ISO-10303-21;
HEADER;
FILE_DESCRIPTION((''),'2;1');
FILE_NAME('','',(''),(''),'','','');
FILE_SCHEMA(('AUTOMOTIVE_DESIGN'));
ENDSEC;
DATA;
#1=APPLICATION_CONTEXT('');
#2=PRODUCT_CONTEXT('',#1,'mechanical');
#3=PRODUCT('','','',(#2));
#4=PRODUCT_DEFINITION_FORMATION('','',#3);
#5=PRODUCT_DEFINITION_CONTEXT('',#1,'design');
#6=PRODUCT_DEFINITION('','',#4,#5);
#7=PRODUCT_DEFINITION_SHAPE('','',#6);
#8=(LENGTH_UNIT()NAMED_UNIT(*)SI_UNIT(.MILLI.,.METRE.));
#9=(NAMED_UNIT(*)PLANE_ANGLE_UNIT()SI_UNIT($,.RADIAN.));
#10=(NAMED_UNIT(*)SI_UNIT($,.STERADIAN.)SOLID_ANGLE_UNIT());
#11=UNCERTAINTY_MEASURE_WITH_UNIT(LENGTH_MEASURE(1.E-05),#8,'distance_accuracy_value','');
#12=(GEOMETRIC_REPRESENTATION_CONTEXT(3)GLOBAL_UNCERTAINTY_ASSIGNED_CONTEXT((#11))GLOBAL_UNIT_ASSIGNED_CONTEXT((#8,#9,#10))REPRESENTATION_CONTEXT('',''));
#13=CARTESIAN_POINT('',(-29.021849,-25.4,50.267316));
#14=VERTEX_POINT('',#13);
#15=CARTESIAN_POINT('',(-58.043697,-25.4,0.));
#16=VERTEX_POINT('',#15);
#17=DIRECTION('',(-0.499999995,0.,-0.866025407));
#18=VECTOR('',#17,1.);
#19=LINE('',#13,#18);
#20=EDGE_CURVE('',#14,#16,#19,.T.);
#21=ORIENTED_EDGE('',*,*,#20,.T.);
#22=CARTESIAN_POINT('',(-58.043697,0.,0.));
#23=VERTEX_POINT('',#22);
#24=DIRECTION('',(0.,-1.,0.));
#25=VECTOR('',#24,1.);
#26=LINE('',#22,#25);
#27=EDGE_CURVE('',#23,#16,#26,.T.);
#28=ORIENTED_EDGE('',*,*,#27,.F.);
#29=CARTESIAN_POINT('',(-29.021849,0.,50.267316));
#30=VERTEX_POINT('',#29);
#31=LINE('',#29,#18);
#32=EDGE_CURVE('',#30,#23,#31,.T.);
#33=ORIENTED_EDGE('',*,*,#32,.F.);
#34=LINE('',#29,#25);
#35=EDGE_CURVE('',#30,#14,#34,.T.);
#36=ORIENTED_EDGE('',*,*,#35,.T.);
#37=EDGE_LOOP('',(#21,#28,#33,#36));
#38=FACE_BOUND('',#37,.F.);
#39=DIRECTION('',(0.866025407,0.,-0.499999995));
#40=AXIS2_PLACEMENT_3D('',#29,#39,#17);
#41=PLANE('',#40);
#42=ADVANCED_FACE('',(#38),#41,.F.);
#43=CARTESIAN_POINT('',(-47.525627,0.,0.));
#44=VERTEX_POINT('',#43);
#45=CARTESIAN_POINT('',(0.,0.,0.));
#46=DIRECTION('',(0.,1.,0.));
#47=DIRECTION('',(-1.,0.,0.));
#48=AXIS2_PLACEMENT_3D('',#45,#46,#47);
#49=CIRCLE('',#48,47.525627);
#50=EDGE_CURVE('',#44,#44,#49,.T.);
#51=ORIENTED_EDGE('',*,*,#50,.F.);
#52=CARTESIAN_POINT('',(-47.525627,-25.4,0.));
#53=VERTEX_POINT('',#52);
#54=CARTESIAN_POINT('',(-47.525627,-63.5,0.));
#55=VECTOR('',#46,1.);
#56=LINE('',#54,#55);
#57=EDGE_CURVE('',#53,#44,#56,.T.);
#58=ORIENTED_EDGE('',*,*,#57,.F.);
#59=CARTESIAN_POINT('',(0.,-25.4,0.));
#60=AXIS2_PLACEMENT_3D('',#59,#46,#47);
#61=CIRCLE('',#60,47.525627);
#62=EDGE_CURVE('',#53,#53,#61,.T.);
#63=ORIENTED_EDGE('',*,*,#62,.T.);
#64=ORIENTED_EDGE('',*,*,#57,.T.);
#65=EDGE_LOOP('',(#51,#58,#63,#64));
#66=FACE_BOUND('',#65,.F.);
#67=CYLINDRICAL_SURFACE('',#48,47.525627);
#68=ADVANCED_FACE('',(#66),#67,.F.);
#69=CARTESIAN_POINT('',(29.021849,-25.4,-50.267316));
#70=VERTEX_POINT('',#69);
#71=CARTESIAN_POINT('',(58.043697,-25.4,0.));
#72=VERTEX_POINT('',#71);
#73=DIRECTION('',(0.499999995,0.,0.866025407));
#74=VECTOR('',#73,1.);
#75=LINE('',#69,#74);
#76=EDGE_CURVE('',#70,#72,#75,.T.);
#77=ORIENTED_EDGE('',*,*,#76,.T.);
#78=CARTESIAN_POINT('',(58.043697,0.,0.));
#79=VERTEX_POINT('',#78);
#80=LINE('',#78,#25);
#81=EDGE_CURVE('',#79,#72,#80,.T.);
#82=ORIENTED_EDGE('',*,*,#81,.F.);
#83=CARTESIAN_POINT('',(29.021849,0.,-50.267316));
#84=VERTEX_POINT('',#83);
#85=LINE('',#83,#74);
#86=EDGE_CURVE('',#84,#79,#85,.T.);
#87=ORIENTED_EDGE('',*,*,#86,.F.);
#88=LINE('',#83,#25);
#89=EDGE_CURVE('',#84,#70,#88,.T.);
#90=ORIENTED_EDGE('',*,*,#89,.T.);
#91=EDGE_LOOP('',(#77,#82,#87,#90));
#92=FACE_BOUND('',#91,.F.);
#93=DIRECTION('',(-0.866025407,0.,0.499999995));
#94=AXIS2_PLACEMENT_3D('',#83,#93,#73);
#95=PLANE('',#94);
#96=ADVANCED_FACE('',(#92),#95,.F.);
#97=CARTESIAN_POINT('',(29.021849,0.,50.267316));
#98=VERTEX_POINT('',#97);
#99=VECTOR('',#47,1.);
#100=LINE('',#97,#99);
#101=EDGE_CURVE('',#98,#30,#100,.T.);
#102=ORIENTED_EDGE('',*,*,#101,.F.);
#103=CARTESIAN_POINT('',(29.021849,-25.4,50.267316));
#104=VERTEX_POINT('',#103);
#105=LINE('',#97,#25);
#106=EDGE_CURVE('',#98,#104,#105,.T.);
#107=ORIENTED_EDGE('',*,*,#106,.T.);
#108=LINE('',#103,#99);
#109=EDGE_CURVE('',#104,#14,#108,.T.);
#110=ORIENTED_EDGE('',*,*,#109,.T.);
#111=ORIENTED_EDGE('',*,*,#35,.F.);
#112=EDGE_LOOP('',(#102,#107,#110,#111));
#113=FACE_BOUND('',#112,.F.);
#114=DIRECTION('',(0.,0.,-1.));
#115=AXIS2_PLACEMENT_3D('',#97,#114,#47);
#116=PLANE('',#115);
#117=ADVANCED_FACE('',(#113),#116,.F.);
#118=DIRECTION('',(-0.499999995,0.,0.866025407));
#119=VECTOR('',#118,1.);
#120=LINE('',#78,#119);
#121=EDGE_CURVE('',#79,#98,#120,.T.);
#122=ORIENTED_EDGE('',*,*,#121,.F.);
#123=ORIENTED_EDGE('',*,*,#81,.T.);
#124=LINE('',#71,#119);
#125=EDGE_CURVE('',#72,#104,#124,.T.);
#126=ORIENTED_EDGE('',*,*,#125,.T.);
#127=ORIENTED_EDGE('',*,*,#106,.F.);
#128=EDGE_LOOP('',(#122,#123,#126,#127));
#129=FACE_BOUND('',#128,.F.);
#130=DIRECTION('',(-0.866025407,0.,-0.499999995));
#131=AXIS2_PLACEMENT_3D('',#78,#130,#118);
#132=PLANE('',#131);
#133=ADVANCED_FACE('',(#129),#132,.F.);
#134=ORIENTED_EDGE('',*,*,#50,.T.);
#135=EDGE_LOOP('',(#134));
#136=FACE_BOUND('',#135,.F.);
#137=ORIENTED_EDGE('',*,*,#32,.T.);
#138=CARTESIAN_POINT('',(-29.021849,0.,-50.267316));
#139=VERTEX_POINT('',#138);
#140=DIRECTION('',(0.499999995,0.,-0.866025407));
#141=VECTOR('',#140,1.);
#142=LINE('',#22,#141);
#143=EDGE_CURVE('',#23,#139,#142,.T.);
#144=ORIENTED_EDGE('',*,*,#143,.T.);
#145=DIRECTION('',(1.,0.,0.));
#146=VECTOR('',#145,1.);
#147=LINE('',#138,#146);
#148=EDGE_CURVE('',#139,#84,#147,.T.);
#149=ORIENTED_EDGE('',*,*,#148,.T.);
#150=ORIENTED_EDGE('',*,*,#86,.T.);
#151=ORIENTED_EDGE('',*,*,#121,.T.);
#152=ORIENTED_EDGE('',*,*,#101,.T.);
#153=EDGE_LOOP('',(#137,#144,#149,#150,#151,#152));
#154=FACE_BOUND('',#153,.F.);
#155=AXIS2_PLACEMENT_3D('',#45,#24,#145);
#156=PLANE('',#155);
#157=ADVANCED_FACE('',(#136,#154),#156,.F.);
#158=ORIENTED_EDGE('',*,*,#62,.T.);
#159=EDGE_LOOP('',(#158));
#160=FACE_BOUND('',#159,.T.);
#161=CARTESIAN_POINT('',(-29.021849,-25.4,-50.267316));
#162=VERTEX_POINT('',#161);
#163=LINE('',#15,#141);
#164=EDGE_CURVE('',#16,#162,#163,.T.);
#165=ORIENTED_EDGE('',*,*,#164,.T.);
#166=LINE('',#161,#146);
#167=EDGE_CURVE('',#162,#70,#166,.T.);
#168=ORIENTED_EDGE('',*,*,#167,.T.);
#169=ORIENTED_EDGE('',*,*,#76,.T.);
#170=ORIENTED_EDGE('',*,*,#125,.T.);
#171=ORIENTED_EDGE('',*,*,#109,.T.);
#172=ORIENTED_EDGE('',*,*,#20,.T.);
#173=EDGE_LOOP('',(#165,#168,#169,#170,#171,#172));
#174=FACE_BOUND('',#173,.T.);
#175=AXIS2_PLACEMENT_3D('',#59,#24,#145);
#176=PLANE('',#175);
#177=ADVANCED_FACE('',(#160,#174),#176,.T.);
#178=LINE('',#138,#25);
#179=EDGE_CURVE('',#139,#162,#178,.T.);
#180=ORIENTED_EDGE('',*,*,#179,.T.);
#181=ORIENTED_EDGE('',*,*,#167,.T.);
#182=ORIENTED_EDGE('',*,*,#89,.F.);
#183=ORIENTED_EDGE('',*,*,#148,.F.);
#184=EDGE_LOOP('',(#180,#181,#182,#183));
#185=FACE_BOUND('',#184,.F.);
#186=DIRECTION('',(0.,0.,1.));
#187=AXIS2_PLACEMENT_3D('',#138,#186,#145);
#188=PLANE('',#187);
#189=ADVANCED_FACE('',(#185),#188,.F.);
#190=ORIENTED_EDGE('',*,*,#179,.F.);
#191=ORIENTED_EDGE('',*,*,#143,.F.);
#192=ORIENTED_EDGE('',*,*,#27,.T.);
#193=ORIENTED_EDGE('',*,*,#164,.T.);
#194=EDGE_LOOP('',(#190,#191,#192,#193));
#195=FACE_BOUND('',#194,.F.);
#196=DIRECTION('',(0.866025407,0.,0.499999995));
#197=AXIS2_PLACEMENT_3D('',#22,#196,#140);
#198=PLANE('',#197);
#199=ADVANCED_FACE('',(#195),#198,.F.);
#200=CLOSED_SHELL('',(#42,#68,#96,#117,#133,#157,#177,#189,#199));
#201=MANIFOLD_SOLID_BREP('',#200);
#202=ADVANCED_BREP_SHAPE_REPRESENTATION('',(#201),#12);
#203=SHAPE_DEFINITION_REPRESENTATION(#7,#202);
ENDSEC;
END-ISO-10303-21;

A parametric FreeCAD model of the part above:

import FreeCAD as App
import Part
import Sketcher
Q = App.Units.Quantity

doc = App.newDocument("Part")
params = doc.addObject("Spreadsheet::Sheet", "Params")
for row, (alias, value) in enumerate([
    ("pad1_length", "1 in"),
    ("pad2_length", "1.18585 mm"),
    ("pocket1_length", "5 in"),
], start=1):
    params.set(f"A{row}", alias)
    params.set(f"B{row}", "=" + value)
    params.setAlias(f"B{row}", alias)

body = doc.addObject("PartDesign::Body", "Body")

sketch1 = body.newObject("Sketcher::SketchObject", "Sketch")
sketch1.AttachmentSupport = (doc.getObject("XZ_Plane"), [""])
sketch1.MapMode = "FlatFace"
sketch1.addGeometry([
    Part.LineSegment(App.Vector(29, 50, 0), App.Vector(-29, 50, 0)),
    Part.LineSegment(App.Vector(-29, 50, 0), App.Vector(-58, 0, 0)),
    Part.LineSegment(App.Vector(-58, 0, 0), App.Vector(-29, -50, 0)),
    Part.LineSegment(App.Vector(-29, -50, 0), App.Vector(29, -50, 0)),
    Part.LineSegment(App.Vector(29, -50, 0), App.Vector(58, 0, 0)),
    Part.LineSegment(App.Vector(58, 0, 0), App.Vector(29, 50, 0)),
], False)
sketch1.addConstraint([
    Sketcher.Constraint("Coincident", 0, 2, 1, 1),
    Sketcher.Constraint("Coincident", 1, 2, 2, 1),
    Sketcher.Constraint("Coincident", 2, 2, 3, 1),
    Sketcher.Constraint("Coincident", 3, 2, 4, 1),
    Sketcher.Constraint("Coincident", 4, 2, 5, 1),
    Sketcher.Constraint("Coincident", 5, 2, 0, 1),
    Sketcher.Constraint("Horizontal", 0),
    Sketcher.Constraint("Horizontal", 3),
    Sketcher.Constraint("Symmetric", 0, 2, 3, 2, -1, 1),
    Sketcher.Constraint("Symmetric", 1, 2, 4, 2, -1, 1),
    Sketcher.Constraint("PointOnObject", 1, 2, -1),
    Sketcher.Constraint("Parallel", 2, 5),
    Sketcher.Constraint("Vertical", 0, 2, 2, 2),
    Sketcher.Constraint("Angle", 1, Q("-120 deg")),
    Sketcher.Constraint("DistanceX", 0, 2, 0, 1, Q("58.043698 mm")),
    Sketcher.Constraint("DistanceX", 1, 2, 0, 2, Q("29.021848 mm")),
])
pad1 = body.newObject("PartDesign::Pad", "Pad")
pad1.Profile = sketch1
pad1.setExpression("Length", "Params.pad1_length")

sketch2 = body.newObject("Sketcher::SketchObject", "Sketch001")
sketch2.AttachmentSupport = (doc.getObject("XZ_Plane"), [""])
sketch2.MapMode = "FlatFace"
sketch2.addGeometry(Part.Circle(App.Vector(0, 0, 0), App.Vector(0, 0, 1), 48), False)
sketch2.addConstraint([
    Sketcher.Constraint("Coincident", 0, 3, -1, 1),
    Sketcher.Constraint("Diameter", 0, Q("96.868858 mm")),
])
pad2 = body.newObject("PartDesign::Pad", "Pad001")
pad2.Profile = sketch2
pad2.setExpression("Length", "Params.pad2_length")

sketch3 = body.newObject("Sketcher::SketchObject", "Sketch002")
sketch3.AttachmentSupport = (doc.getObject("XZ_Plane"), [""])
sketch3.MapMode = "FlatFace"
sketch3.addGeometry(Part.Circle(App.Vector(0, 0, 0), App.Vector(0, 0, 1), 48), False)
sketch3.addConstraint([
    Sketcher.Constraint("Coincident", 0, 3, -1, 1),
    Sketcher.Constraint("Diameter", 0, Q("95.051254 mm")),
])
pocket1 = body.newObject("PartDesign::Pocket", "Pocket")
pocket1.Profile = sketch3
pocket1.setExpression("Length", "Params.pocket1_length")
pocket1.Midplane = True

doc.recompute()
